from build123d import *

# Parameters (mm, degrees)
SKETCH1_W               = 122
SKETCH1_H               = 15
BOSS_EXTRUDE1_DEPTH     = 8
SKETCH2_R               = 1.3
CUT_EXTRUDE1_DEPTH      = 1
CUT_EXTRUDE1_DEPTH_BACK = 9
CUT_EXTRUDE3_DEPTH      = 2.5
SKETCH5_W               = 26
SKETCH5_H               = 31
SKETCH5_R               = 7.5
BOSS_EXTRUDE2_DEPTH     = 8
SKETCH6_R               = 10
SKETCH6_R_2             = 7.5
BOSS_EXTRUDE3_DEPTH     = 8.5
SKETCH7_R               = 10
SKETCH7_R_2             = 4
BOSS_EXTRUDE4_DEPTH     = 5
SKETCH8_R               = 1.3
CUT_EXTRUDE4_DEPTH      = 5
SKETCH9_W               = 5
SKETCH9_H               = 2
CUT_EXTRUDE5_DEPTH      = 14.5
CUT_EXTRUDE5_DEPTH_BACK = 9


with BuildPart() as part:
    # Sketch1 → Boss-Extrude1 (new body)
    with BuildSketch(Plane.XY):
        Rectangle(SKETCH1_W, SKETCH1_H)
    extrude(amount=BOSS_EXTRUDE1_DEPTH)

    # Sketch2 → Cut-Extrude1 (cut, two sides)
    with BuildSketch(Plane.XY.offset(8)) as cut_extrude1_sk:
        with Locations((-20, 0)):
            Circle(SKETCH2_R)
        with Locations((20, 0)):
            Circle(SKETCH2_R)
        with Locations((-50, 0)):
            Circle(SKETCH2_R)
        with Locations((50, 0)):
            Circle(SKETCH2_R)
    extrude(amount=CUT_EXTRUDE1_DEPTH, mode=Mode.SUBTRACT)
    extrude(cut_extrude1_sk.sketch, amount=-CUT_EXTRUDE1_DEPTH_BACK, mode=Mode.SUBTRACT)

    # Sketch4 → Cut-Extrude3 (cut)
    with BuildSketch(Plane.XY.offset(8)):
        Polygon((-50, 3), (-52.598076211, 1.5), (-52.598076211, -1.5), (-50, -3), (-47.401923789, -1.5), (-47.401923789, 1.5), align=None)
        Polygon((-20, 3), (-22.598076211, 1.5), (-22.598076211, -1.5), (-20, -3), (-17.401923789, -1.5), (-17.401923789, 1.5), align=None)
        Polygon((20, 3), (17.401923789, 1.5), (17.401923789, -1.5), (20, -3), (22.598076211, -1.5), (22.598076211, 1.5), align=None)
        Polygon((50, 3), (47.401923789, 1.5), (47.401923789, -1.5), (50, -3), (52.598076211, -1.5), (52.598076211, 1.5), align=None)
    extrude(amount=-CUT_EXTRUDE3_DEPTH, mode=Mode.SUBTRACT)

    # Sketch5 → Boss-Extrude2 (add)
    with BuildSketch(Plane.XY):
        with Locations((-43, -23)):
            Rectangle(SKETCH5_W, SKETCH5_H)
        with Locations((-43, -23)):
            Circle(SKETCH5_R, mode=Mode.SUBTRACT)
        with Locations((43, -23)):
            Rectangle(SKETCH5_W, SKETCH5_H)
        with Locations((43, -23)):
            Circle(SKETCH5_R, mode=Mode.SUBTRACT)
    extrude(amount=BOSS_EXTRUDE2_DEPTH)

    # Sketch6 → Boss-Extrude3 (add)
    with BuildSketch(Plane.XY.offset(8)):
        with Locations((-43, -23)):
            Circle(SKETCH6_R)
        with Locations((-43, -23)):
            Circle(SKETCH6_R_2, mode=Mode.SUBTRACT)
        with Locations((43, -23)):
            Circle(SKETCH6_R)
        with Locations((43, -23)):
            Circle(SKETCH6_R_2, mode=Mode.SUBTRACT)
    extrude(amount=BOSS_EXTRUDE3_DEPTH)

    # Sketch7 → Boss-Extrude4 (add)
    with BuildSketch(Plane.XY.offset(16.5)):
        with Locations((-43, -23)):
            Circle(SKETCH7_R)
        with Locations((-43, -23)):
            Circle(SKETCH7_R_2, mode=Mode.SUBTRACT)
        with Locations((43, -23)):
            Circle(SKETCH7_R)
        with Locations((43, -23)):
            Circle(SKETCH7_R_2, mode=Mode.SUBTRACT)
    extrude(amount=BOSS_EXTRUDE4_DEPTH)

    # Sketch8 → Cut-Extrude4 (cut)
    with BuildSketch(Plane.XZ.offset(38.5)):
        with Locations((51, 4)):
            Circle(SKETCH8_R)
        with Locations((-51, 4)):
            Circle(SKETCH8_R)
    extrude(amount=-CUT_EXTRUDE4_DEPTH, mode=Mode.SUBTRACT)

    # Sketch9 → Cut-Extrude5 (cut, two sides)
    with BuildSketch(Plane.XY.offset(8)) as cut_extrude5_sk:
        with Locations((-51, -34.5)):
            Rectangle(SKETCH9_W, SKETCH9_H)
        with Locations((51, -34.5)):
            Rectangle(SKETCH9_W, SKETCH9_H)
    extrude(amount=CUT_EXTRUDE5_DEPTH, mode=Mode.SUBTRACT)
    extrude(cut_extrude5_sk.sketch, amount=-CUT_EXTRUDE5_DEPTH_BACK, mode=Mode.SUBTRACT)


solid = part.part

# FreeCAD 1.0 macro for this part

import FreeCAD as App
import Part
import Sketcher
Q = App.Units.Quantity


def add_polygon(sketch, points):
    """Adds a closed chain of lines whose ends are joined by coincident constraints."""
    first, n = sketch.GeometryCount, len(points)
    for a, b in zip(points, points[1:] + points[:1]):
        sketch.addGeometry(Part.LineSegment(App.Vector(*a, 0), App.Vector(*b, 0)), False)
    for i in range(n):
        sketch.addConstraint(Sketcher.Constraint("Coincident", first + i, 2, first + (i + 1) % n, 1))

doc = App.newDocument("Part")
body = doc.addObject("PartDesign::Body", "Body")

# Sketch on XY plane
sketch1 = body.newObject("Sketcher::SketchObject", "Sketch")
sketch1.AttachmentSupport = (doc.getObject("XY_Plane"), [""])
sketch1.MapMode = "FlatFace"
add_polygon(sketch1, [(-61, 8), (-61, -8), (61, -8), (61, 8)])  # lines 0-3
sketch1.addConstraint(Sketcher.Constraint("Vertical", 0))
sketch1.addConstraint(Sketcher.Constraint("Horizontal", 1))
sketch1.addConstraint(Sketcher.Constraint("Vertical", 2))
sketch1.addConstraint(Sketcher.Constraint("Horizontal", 3))
sketch1.addConstraint(Sketcher.Constraint("Symmetric", 0, 2, 2, 2, -1, 1))
sketch1.addConstraint(Sketcher.Constraint("DistanceX", 1, 1, 1, 2, Q("122 mm")))
sketch1.addConstraint(Sketcher.Constraint("DistanceY", 0, 2, 0, 1, Q("15 mm")))
pad1 = body.newObject("PartDesign::Pad", "Pad")
pad1.Profile = sketch1
pad1.Length = 8

# Sketch on XY plane
sketch2 = body.newObject("Sketcher::SketchObject", "Sketch001")
sketch2.AttachmentSupport = (doc.getObject("XY_Plane"), [""])
sketch2.MapMode = "FlatFace"
sketch2.AttachmentOffset = App.Placement(App.Vector(0, 0, 8), App.Rotation())
sketch2.addGeometry(Part.Circle(App.Vector(-20, 0, 0), App.Vector(0, 0, 1), 1.3), False)
sketch2.addGeometry(Part.Circle(App.Vector(20, 0, 0), App.Vector(0, 0, 1), 1.3), False)
sketch2.addGeometry(Part.Circle(App.Vector(-50, 0, 0), App.Vector(0, 0, 1), 1.3), False)
sketch2.addGeometry(Part.Circle(App.Vector(50, 0, 0), App.Vector(0, 0, 1), 1.3), False)
sketch2.addConstraint(Sketcher.Constraint("Equal", 0, 1))
sketch2.addConstraint(Sketcher.Constraint("Equal", 1, 2))
sketch2.addConstraint(Sketcher.Constraint("Equal", 2, 3))
sketch2.addConstraint(Sketcher.Constraint("Symmetric", 0, 3, 1, 3, -1, 1))
sketch2.addConstraint(Sketcher.Constraint("Symmetric", 2, 3, 3, 3, -1, 1))
sketch2.addConstraint(Sketcher.Constraint("PointOnObject", 0, 3, -1))
sketch2.addConstraint(Sketcher.Constraint("PointOnObject", 2, 3, -1))
sketch2.addConstraint(Sketcher.Constraint("Diameter", 0, Q("2.6 mm")))
sketch2.addConstraint(Sketcher.Constraint("DistanceX", 0, 3, -1, 1, Q("20 mm")))
sketch2.addConstraint(Sketcher.Constraint("DistanceX", 2, 3, -1, 1, Q("50 mm")))
pocket1 = body.newObject("PartDesign::Pocket", "Pocket")
pocket1.Profile = sketch2
pocket1.Type = "ThroughAll"
pocket1.Midplane = True

# Sketch on XY plane
sketch3 = body.newObject("Sketcher::SketchObject", "Sketch002")
sketch3.AttachmentSupport = (doc.getObject("XY_Plane"), [""])
sketch3.MapMode = "FlatFace"
sketch3.AttachmentOffset = App.Placement(App.Vector(0, 0, 8), App.Rotation())
add_polygon(sketch3, [(-50, 3), (-52.6, 1.5), (-52.6, -1.5), (-50, -3), (-47.4, -1.5), (-47.4, 1.5)])  # lines 0-5
add_polygon(sketch3, [(-20, 3), (-22.6, 1.5), (-22.6, -1.5), (-20, -3), (-17.4, -1.5), (-17.4, 1.5)])  # lines 6-11
add_polygon(sketch3, [(20, 3), (17.4, 1.5), (17.4, -1.5), (20, -3), (22.6, -1.5), (22.6, 1.5)])  # lines 12-17
add_polygon(sketch3, [(50, 3), (47.4, 1.5), (47.4, -1.5), (50, -3), (52.6, -1.5), (52.6, 1.5)])  # lines 18-23
sketch3.addConstraint(Sketcher.Constraint("Vertical", 1))
sketch3.addConstraint(Sketcher.Constraint("Vertical", 4))
sketch3.addConstraint(Sketcher.Constraint("Vertical", 7))
sketch3.addConstraint(Sketcher.Constraint("Vertical", 10))
sketch3.addConstraint(Sketcher.Constraint("Vertical", 13))
sketch3.addConstraint(Sketcher.Constraint("Vertical", 16))
sketch3.addConstraint(Sketcher.Constraint("Vertical", 19))
sketch3.addConstraint(Sketcher.Constraint("Vertical", 22))
sketch3.addConstraint(Sketcher.Constraint("Symmetric", 9, 2, 12, 2, -1, 1))
sketch3.addConstraint(Sketcher.Constraint("Symmetric", 11, 2, 14, 2, -1, 1))
sketch3.addConstraint(Sketcher.Constraint("Symmetric", 6, 2, 15, 2, -1, 1))
sketch3.addConstraint(Sketcher.Constraint("Symmetric", 8, 2, 17, 2, -1, 1))
sketch3.addConstraint(Sketcher.Constraint("Symmetric", 3, 2, 18, 2, -1, 1))
sketch3.addConstraint(Sketcher.Constraint("Symmetric", 5, 2, 20, 2, -1, 1))
sketch3.addConstraint(Sketcher.Constraint("Symmetric", 0, 2, 21, 2, -1, 1))
sketch3.addConstraint(Sketcher.Constraint("Symmetric", 2, 2, 23, 2, -1, 1))
sketch3.addConstraint(Sketcher.Constraint("Symmetric", 8, 2, 14, 2, -2))
sketch3.addConstraint(Sketcher.Constraint("Symmetric", 2, 2, 20, 2, -2))
sketch3.addConstraint(Sketcher.Constraint("Parallel", 0, 3))
sketch3.addConstraint(Sketcher.Constraint("Parallel", 2, 5))
sketch3.addConstraint(Sketcher.Constraint("Parallel", 3, 6))
sketch3.addConstraint(Sketcher.Constraint("Parallel", 5, 8))
sketch3.addConstraint(Sketcher.Constraint("Parallel", 6, 9))
sketch3.addConstraint(Sketcher.Constraint("Parallel", 8, 11))
sketch3.addConstraint(Sketcher.Constraint("Parallel", 11, 14))
sketch3.addConstraint(Sketcher.Constraint("Parallel", 14, 17))
sketch3.addConstraint(Sketcher.Constraint("Parallel", 17, 20))
sketch3.addConstraint(Sketcher.Constraint("Parallel", 20, 23))
sketch3.addConstraint(Sketcher.Constraint("Horizontal", 1, 2, 3, 2))
sketch3.addConstraint(Sketcher.Constraint("Horizontal", 0, 2, 4, 2))
sketch3.addConstraint(Sketcher.Constraint("Horizontal", 4, 2, 6, 2))
sketch3.addConstraint(Sketcher.Constraint("Horizontal", 2, 2, 8, 2))
sketch3.addConstraint(Sketcher.Constraint("Horizontal", 7, 2, 9, 2))
sketch3.addConstraint(Sketcher.Constraint("DistanceY", 1, 2, 1, 1, Q("3 mm")))
sketch3.addConstraint(Sketcher.Constraint("Angle", 0, Q("-150 deg")))
sketch3.addConstraint(Sketcher.Constraint("Distance", 0, Q("3 mm")))
sketch3.addConstraint(Sketcher.Constraint("DistanceX", 2, 2, -1, 1, Q("50 mm")))
sketch3.addConstraint(Sketcher.Constraint("DistanceX", 8, 2, -1, 1, Q("20 mm")))
pocket2 = body.newObject("PartDesign::Pocket", "Pocket001")
pocket2.Profile = sketch3
pocket2.Length = 2.5

# Sketch on XY plane
sketch4 = body.newObject("Sketcher::SketchObject", "Sketch003")
sketch4.AttachmentSupport = (doc.getObject("XY_Plane"), [""])
sketch4.MapMode = "FlatFace"
add_polygon(sketch4, [(-56, -8), (-56, -38), (-30, -38), (-30, -8)])  # lines 0-3
sketch4.addGeometry(Part.Circle(App.Vector(-43, -23, 0), App.Vector(0, 0, 1), 8), False)  # 4
add_polygon(sketch4, [(30, -8), (30, -38), (56, -38), (56, -8)])  # lines 5-8
sketch4.addGeometry(Part.Circle(App.Vector(43, -23, 0), App.Vector(0, 0, 1), 8), False)  # 9
sketch4.addConstraint(Sketcher.Constraint("Vertical", 0))
sketch4.addConstraint(Sketcher.Constraint("Horizontal", 1))
sketch4.addConstraint(Sketcher.Constraint("Vertical", 2))
sketch4.addConstraint(Sketcher.Constraint("Horizontal", 3))
sketch4.addConstraint(Sketcher.Constraint("Vertical", 5))
sketch4.addConstraint(Sketcher.Constraint("Horizontal", 6))
sketch4.addConstraint(Sketcher.Constraint("Vertical", 7))
sketch4.addConstraint(Sketcher.Constraint("Horizontal", 8))
sketch4.addConstraint(Sketcher.Constraint("Equal", 4, 9))
sketch4.addConstraint(Sketcher.Constraint("Symmetric", 4, 3, 9, 3, -2))
sketch4.addConstraint(Sketcher.Constraint("Symmetric", 1, 2, 5, 2, -2))
sketch4.addConstraint(Sketcher.Constraint("Symmetric", 3, 2, 7, 2, -2))
sketch4.addConstraint(Sketcher.Constraint("Diameter", 4, Q("15 mm")))
sketch4.addConstraint(Sketcher.Constraint("DistanceX", 1, 1, 1, 2, Q("26 mm")))
sketch4.addConstraint(Sketcher.Constraint("DistanceY", 0, 2, 0, 1, Q("31 mm")))
sketch4.addConstraint(Sketcher.Constraint("DistanceX", 4, 3, -1, 1, Q("43 mm")))
sketch4.addConstraint(Sketcher.Constraint("DistanceY", 4, 3, -1, 1, Q("23 mm")))
sketch4.addConstraint(Sketcher.Constraint("DistanceX", 0, 2, -1, 1, Q("56 mm")))
sketch4.addConstraint(Sketcher.Constraint("DistanceY", 0, 2, -1, 1, Q("38.5 mm")))
pad2 = body.newObject("PartDesign::Pad", "Pad001")
pad2.Profile = sketch4
pad2.Length = 8

# Sketch on XY plane
sketch5 = body.newObject("Sketcher::SketchObject", "Sketch004")
sketch5.AttachmentSupport = (doc.getObject("XY_Plane"), [""])
sketch5.MapMode = "FlatFace"
sketch5.AttachmentOffset = App.Placement(App.Vector(0, 0, 8), App.Rotation())
sketch5.addGeometry(Part.Circle(App.Vector(-43, -23, 0), App.Vector(0, 0, 1), 10), False)
sketch5.addGeometry(Part.Circle(App.Vector(-43, -23, 0), App.Vector(0, 0, 1), 8), False)
sketch5.addGeometry(Part.Circle(App.Vector(43, -23, 0), App.Vector(0, 0, 1), 10), False)
sketch5.addGeometry(Part.Circle(App.Vector(43, -23, 0), App.Vector(0, 0, 1), 8), False)
sketch5.addConstraint(Sketcher.Constraint("Coincident", 1, 3, 0, 3))
sketch5.addConstraint(Sketcher.Constraint("Coincident", 3, 3, 2, 3))
sketch5.addConstraint(Sketcher.Constraint("Equal", 0, 2))
sketch5.addConstraint(Sketcher.Constraint("Equal", 1, 3))
sketch5.addConstraint(Sketcher.Constraint("Symmetric", 0, 3, 2, 3, -2))
sketch5.addConstraint(Sketcher.Constraint("Diameter", 0, Q("20 mm")))
sketch5.addConstraint(Sketcher.Constraint("Diameter", 1, Q("15 mm")))
sketch5.addConstraint(Sketcher.Constraint("DistanceX", 0, 3, -1, 1, Q("43 mm")))
sketch5.addConstraint(Sketcher.Constraint("DistanceY", 0, 3, -1, 1, Q("23 mm")))
pad3 = body.newObject("PartDesign::Pad", "Pad002")
pad3.Profile = sketch5
pad3.Length = 8.5

# Sketch on XY plane
sketch6 = body.newObject("Sketcher::SketchObject", "Sketch005")
sketch6.AttachmentSupport = (doc.getObject("XY_Plane"), [""])
sketch6.MapMode = "FlatFace"
sketch6.AttachmentOffset = App.Placement(App.Vector(0, 0, 16.5), App.Rotation())
sketch6.addGeometry(Part.Circle(App.Vector(-43, -23, 0), App.Vector(0, 0, 1), 10), False)
sketch6.addGeometry(Part.Circle(App.Vector(-43, -23, 0), App.Vector(0, 0, 1), 4), False)
sketch6.addGeometry(Part.Circle(App.Vector(43, -23, 0), App.Vector(0, 0, 1), 10), False)
sketch6.addGeometry(Part.Circle(App.Vector(43, -23, 0), App.Vector(0, 0, 1), 4), False)
sketch6.addConstraint(Sketcher.Constraint("Coincident", 1, 3, 0, 3))
sketch6.addConstraint(Sketcher.Constraint("Coincident", 3, 3, 2, 3))
sketch6.addConstraint(Sketcher.Constraint("Equal", 0, 2))
sketch6.addConstraint(Sketcher.Constraint("Equal", 1, 3))
sketch6.addConstraint(Sketcher.Constraint("Symmetric", 0, 3, 2, 3, -2))
sketch6.addConstraint(Sketcher.Constraint("Diameter", 0, Q("20 mm")))
sketch6.addConstraint(Sketcher.Constraint("Diameter", 1, Q("8 mm")))
sketch6.addConstraint(Sketcher.Constraint("DistanceX", 0, 3, -1, 1, Q("43 mm")))
sketch6.addConstraint(Sketcher.Constraint("DistanceY", 0, 3, -1, 1, Q("23 mm")))
pad4 = body.newObject("PartDesign::Pad", "Pad003")
pad4.Profile = sketch6
pad4.Length = 5

# Sketch on XZ plane
sketch7 = body.newObject("Sketcher::SketchObject", "Sketch006")
sketch7.AttachmentSupport = (doc.getObject("XZ_Plane"), [""])
sketch7.MapMode = "FlatFace"
sketch7.AttachmentOffset = App.Placement(App.Vector(0, 0, 38.5), App.Rotation())
sketch7.addGeometry(Part.Circle(App.Vector(51, 4, 0), App.Vector(0, 0, 1), 1.3), False)
sketch7.addGeometry(Part.Circle(App.Vector(-51, 4, 0), App.Vector(0, 0, 1), 1.3), False)
sketch7.addConstraint(Sketcher.Constraint("Equal", 0, 1))
sketch7.addConstraint(Sketcher.Constraint("Symmetric", 0, 3, 1, 3, -2))
sketch7.addConstraint(Sketcher.Constraint("Diameter", 0, Q("2.6 mm")))
sketch7.addConstraint(Sketcher.Constraint("DistanceX", -1, 1, 0, 3, Q("51 mm")))
sketch7.addConstraint(Sketcher.Constraint("DistanceY", -1, 1, 0, 3, Q("4 mm")))
pocket3 = body.newObject("PartDesign::Pocket", "Pocket002")
pocket3.Profile = sketch7
pocket3.Length = 5

# Sketch on XY plane
sketch8 = body.newObject("Sketcher::SketchObject", "Sketch007")
sketch8.AttachmentSupport = (doc.getObject("XY_Plane"), [""])
sketch8.MapMode = "FlatFace"
sketch8.AttachmentOffset = App.Placement(App.Vector(0, 0, 8), App.Rotation())
add_polygon(sketch8, [(-53.5, -33.5), (-53.5, -35.5), (-48.5, -35.5), (-48.5, -33.5)])  # lines 0-3
add_polygon(sketch8, [(48.5, -33.5), (48.5, -35.5), (53.5, -35.5), (53.5, -33.5)])  # lines 4-7
sketch8.addConstraint(Sketcher.Constraint("Vertical", 0))
sketch8.addConstraint(Sketcher.Constraint("Horizontal", 1))
sketch8.addConstraint(Sketcher.Constraint("Vertical", 2))
sketch8.addConstraint(Sketcher.Constraint("Horizontal", 3))
sketch8.addConstraint(Sketcher.Constraint("Vertical", 4))
sketch8.addConstraint(Sketcher.Constraint("Horizontal", 5))
sketch8.addConstraint(Sketcher.Constraint("Vertical", 6))
sketch8.addConstraint(Sketcher.Constraint("Horizontal", 7))
sketch8.addConstraint(Sketcher.Constraint("Symmetric", 1, 2, 4, 2, -2))
sketch8.addConstraint(Sketcher.Constraint("Symmetric", 3, 2, 6, 2, -2))
sketch8.addConstraint(Sketcher.Constraint("DistanceX", 1, 1, 1, 2, Q("5 mm")))
sketch8.addConstraint(Sketcher.Constraint("DistanceY", 0, 2, 0, 1, Q("2 mm")))
sketch8.addConstraint(Sketcher.Constraint("DistanceX", 1, 2, 4, 2, Q("97 mm")))
sketch8.addConstraint(Sketcher.Constraint("DistanceY", 0, 2, -1, 1, Q("35.5 mm")))
pocket4 = body.newObject("PartDesign::Pocket", "Pocket003")
pocket4.Profile = sketch8
pocket4.Type = "ThroughAll"
pocket4.Midplane = True

doc.recompute()
